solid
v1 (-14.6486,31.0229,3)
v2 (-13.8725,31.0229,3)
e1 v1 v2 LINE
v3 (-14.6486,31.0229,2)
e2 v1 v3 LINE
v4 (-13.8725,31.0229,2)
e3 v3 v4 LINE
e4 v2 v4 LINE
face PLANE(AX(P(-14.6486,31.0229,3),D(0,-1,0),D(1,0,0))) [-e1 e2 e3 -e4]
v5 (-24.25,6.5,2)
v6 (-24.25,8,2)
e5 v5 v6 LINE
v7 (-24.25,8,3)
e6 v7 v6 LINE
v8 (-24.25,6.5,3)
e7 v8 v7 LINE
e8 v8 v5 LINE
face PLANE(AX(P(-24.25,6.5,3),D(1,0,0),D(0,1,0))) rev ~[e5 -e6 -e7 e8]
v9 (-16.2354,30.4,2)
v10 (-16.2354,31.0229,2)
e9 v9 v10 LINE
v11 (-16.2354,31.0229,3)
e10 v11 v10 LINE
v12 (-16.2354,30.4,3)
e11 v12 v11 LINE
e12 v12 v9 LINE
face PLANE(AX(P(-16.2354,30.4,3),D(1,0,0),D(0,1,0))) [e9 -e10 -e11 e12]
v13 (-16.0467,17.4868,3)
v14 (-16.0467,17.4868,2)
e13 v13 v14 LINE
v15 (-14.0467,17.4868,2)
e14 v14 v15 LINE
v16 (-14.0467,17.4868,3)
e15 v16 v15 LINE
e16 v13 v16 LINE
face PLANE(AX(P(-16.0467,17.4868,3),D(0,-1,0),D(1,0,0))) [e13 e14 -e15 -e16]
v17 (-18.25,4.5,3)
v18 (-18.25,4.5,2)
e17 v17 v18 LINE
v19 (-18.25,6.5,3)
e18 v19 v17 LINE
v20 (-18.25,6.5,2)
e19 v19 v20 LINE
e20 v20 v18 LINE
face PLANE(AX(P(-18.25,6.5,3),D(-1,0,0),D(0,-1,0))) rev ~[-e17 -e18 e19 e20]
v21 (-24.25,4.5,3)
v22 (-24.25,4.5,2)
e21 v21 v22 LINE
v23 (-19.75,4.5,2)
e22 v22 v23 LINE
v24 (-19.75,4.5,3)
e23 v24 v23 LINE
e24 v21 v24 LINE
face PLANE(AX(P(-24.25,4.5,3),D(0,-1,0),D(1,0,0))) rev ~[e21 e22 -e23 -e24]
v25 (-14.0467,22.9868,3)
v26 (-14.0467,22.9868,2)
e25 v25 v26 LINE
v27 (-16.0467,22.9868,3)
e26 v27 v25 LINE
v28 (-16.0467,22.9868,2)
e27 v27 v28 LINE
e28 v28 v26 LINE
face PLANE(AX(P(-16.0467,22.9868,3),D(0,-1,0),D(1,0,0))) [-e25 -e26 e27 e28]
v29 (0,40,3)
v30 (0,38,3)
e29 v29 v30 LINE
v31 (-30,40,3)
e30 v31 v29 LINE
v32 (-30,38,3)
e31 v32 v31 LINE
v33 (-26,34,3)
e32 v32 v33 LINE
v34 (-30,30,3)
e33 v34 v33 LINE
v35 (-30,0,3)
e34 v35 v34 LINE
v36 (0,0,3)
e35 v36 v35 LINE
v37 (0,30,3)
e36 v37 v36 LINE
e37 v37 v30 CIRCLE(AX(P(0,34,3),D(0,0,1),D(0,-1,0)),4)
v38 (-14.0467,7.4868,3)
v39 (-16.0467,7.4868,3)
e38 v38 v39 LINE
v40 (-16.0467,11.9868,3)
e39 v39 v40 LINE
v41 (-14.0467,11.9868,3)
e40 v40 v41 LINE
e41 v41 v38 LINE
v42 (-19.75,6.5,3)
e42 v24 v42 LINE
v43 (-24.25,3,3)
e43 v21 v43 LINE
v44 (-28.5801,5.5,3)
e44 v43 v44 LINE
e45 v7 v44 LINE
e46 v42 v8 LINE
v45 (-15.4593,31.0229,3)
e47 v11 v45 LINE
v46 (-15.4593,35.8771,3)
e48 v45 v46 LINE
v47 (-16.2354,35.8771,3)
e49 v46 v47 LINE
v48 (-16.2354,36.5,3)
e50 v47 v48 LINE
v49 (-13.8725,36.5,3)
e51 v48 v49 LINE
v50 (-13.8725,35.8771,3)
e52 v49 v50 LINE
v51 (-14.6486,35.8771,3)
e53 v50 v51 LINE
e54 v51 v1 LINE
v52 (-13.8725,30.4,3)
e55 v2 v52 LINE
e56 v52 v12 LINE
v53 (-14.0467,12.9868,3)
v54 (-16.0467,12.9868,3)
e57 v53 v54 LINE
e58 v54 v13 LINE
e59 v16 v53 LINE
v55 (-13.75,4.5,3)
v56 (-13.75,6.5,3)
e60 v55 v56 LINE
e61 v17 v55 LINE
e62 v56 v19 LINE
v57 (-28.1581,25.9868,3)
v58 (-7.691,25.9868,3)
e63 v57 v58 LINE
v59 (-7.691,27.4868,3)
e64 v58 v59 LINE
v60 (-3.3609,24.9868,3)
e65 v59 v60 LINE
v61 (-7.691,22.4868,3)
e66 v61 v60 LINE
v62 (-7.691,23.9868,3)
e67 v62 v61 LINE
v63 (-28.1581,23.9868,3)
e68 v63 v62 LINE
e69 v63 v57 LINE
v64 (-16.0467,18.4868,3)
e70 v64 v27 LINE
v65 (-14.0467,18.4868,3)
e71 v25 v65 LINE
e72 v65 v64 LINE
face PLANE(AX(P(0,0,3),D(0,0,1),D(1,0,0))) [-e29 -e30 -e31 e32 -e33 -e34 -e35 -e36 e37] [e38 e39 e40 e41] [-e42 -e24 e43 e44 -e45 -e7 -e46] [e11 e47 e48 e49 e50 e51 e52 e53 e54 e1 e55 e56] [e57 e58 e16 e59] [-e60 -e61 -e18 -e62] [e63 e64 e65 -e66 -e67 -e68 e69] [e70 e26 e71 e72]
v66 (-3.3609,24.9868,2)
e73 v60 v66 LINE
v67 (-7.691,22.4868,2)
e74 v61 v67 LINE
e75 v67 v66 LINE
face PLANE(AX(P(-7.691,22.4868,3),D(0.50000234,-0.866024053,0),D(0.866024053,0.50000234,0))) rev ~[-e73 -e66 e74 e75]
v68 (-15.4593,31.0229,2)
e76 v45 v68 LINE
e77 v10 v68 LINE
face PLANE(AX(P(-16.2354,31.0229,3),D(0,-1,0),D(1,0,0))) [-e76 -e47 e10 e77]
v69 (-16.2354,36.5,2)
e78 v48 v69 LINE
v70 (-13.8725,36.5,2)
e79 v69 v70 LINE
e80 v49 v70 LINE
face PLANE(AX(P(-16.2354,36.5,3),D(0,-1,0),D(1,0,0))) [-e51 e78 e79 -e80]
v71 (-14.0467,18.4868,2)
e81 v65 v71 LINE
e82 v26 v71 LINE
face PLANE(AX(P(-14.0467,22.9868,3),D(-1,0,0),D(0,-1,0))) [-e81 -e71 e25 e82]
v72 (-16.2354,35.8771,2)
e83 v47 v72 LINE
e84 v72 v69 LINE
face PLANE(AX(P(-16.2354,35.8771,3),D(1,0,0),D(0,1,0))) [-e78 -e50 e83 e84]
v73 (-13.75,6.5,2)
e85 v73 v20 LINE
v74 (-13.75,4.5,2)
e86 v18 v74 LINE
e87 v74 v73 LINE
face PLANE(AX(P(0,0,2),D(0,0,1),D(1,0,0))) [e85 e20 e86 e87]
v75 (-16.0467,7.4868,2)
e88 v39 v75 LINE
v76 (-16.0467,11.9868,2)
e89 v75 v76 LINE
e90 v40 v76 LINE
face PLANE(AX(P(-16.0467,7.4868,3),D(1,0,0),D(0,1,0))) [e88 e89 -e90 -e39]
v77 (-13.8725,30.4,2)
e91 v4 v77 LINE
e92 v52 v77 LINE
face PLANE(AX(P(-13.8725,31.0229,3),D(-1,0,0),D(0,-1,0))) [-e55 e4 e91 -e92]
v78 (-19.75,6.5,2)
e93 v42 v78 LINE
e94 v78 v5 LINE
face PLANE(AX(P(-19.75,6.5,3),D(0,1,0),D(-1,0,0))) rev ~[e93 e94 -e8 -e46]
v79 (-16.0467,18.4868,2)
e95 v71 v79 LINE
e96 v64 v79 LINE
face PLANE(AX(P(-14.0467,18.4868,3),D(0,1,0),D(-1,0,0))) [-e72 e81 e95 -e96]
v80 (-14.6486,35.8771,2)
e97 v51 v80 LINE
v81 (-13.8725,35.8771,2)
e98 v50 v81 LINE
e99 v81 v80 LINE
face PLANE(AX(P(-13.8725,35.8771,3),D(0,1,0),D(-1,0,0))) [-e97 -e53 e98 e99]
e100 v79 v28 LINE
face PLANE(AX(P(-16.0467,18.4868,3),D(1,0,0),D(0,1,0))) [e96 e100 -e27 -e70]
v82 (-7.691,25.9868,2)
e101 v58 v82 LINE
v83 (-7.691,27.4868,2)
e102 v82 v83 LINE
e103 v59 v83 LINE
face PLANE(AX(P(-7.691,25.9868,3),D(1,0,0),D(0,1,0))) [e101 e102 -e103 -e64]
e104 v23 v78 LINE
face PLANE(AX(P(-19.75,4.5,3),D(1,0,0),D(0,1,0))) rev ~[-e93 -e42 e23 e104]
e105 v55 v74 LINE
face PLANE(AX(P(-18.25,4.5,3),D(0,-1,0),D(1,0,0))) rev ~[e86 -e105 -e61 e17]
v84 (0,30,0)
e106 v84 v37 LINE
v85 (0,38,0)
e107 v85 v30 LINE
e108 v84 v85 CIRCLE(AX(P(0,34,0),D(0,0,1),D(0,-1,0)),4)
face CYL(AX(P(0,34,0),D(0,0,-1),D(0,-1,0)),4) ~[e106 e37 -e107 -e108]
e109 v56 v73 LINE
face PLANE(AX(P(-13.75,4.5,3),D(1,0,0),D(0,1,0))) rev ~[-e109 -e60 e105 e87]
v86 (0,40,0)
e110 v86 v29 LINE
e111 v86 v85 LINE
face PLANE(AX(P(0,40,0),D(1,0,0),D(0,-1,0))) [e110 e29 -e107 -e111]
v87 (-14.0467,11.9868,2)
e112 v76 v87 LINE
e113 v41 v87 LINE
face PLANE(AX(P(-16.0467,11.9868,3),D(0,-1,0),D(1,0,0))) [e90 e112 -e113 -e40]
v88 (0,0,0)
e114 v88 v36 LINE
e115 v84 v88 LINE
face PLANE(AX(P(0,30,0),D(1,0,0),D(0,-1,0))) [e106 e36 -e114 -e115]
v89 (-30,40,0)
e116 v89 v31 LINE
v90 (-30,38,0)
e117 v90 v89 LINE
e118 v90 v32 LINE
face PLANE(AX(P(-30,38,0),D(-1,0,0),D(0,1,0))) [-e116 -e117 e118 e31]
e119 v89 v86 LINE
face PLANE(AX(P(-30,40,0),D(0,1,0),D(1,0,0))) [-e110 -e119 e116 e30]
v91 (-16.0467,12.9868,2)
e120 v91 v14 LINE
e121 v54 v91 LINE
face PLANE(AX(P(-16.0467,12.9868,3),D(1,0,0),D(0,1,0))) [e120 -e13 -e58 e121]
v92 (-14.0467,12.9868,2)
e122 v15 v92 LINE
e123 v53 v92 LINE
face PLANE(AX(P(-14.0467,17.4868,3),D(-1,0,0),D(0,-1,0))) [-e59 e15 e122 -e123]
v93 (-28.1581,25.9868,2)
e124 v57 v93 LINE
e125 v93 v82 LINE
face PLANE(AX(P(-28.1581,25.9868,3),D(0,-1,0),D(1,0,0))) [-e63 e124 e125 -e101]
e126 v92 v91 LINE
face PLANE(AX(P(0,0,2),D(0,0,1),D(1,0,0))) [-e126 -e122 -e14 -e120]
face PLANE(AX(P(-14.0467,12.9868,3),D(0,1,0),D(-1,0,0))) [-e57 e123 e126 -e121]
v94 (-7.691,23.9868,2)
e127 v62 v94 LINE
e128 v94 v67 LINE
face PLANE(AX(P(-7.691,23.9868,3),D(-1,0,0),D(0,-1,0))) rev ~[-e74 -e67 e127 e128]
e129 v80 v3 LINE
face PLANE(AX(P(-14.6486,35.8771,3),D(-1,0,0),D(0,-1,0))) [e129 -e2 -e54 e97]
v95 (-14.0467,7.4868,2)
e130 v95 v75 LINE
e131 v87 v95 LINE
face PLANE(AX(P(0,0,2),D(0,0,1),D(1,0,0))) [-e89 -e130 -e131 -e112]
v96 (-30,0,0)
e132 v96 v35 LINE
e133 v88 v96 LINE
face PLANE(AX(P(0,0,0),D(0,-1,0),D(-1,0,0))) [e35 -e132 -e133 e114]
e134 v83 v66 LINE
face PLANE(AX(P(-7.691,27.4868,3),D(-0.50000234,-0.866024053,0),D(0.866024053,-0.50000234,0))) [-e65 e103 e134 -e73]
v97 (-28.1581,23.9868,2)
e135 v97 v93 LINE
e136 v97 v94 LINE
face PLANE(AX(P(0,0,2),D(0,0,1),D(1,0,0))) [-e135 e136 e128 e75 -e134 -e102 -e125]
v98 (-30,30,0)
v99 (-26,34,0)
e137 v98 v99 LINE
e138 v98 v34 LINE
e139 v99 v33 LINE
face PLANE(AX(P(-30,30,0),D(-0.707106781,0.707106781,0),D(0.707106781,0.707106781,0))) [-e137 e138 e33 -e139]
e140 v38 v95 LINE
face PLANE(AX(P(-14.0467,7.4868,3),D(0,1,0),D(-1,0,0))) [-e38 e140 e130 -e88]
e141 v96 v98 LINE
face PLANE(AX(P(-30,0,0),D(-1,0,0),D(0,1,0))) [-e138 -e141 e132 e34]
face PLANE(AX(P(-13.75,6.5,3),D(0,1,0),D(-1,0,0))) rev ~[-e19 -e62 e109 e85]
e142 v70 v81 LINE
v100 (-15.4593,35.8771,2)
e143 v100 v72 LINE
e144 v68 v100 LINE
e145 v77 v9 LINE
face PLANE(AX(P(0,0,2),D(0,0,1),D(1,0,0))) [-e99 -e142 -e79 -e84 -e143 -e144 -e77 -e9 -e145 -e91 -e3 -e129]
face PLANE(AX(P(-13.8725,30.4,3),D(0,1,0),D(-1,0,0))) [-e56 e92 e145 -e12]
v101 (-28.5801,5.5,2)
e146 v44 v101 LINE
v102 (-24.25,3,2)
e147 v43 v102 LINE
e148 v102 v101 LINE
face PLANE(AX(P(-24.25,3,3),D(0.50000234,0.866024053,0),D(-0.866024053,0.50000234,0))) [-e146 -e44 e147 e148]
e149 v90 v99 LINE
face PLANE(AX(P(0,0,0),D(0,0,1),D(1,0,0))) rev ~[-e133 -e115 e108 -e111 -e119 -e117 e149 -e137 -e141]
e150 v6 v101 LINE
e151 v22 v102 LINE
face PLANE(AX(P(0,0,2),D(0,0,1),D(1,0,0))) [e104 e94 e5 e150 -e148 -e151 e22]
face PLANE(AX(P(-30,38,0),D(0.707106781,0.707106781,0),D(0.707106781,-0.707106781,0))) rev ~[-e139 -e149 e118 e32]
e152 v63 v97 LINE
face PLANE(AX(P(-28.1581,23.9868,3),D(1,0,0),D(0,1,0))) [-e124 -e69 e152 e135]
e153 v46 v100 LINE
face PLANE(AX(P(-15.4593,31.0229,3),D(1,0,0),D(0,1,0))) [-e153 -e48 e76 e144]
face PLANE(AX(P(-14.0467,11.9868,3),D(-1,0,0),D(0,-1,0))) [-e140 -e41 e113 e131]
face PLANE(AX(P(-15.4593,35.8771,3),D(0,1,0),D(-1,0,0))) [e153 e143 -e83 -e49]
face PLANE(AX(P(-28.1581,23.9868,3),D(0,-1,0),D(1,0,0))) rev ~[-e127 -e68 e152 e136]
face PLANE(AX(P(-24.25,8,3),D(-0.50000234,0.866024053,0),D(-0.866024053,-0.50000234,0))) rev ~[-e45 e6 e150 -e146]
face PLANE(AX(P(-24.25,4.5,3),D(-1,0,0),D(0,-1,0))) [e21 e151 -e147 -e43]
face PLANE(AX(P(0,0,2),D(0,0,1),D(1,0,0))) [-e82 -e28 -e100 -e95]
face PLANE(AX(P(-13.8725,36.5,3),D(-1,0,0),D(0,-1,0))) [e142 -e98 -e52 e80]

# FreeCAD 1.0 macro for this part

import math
import FreeCAD as App
import Part
import Sketcher

V = App.Vector


def add_polygon(sketch, points):
    """Adds a closed chain of lines whose ends are joined by coincident constraints."""
    first, n = sketch.GeometryCount, len(points)
    for a, b in zip(points, points[1:] + points[:1]):
        sketch.addGeometry(Part.LineSegment(App.Vector(*a, 0), App.Vector(*b, 0)), False)
    for i in range(n):
        sketch.addConstraint(Sketcher.Constraint("Coincident", first + i, 2, first + (i + 1) % n, 1))

doc = App.newDocument("Part")
params = doc.addObject("Spreadsheet::Sheet", "Params")
for row, (alias, value) in enumerate([
    ("sketch1_radius", "4 mm"),
    ("sketch1_width", "30 mm"),
    ("pad1_length", "3 mm"),
    ("sketch2_width", "2 mm"),
    ("sketch2_length", "5 mm"),
    ("sketch2_width2", "4.5 mm"),
    ("sketch2_height", "1.5 mm"),
    ("pocket1_length", "1 mm"),
], start=1):
    params.set(f"A{row}", alias)
    params.set(f"B{row}", "=" + value)
    params.setAlias(f"B{row}", alias)

body = doc.addObject("PartDesign::Body", "Body")

# Sketch on XY plane
sketch1 = body.newObject("Sketcher::SketchObject", "Sketch")
sketch1.AttachmentSupport = (doc.getObject("XY_Plane"), [""])
sketch1.MapMode = "FlatFace"
sketch1.addGeometry([
    Part.LineSegment(V(-30, 0, 0), V(0, 0, 0)),  # 0
    Part.LineSegment(V(0, 0, 0), V(0, 30, 0)),  # 1
    Part.ArcOfCircle(Part.Circle(V(0, 34, 0), V(0, 0, 1), 4), math.radians(-90), math.radians(90)),  # 2
    Part.LineSegment(V(0, 38, 0), V(0, 40, 0)),  # 3
    Part.LineSegment(V(0, 40, 0), V(-30, 40, 0)),  # 4
    Part.LineSegment(V(-30, 40, 0), V(-30, 38, 0)),  # 5
    Part.LineSegment(V(-30, 38, 0), V(-26, 34, 0)),  # 6
    Part.LineSegment(V(-26, 34, 0), V(-30, 30, 0)),  # 7
    Part.LineSegment(V(-30, 30, 0), V(-30, 0, 0)),  # 8
], False)
sketch1.addConstraint([
    Sketcher.Constraint("Coincident", 0, 2, 1, 1),
    Sketcher.Constraint("Coincident", 1, 2, 2, 1),
    Sketcher.Constraint("Coincident", 2, 2, 3, 1),
    Sketcher.Constraint("Coincident", 3, 2, 4, 1),
    Sketcher.Constraint("Coincident", 4, 2, 5, 1),
    Sketcher.Constraint("Coincident", 5, 2, 6, 1),
    Sketcher.Constraint("Coincident", 6, 2, 7, 1),
    Sketcher.Constraint("Coincident", 7, 2, 8, 1),
    Sketcher.Constraint("Coincident", 8, 2, 0, 1),
    Sketcher.Constraint("Horizontal", 0),
    Sketcher.Constraint("Vertical", 1),
    Sketcher.Constraint("Vertical", 3),
    Sketcher.Constraint("Horizontal", 4),
    Sketcher.Constraint("Vertical", 5),
    Sketcher.Constraint("Vertical", 8),
    Sketcher.Constraint("Coincident", 0, 2, -1, 1),
    Sketcher.Constraint("PointOnObject", 2, 3, -2),
    Sketcher.Constraint("PointOnObject", 2, 2, -2),
    Sketcher.Constraint("Perpendicular", 6, 7),
    Sketcher.Constraint("Horizontal", 2, 2, 5, 2),
    Sketcher.Constraint("Horizontal", 2, 3, 6, 2),
    Sketcher.Constraint("Horizontal", 1, 2, 7, 2),
    Sketcher.Constraint("Vertical", 5, 2, 7, 2),
    Sketcher.Constraint("Equal", 4, 1),
    Sketcher.Constraint("Radius", 2, 4.0),
    Sketcher.Constraint("DistanceX", 0, 1, 0, 2, 30.0),
    Sketcher.Constraint("DistanceY", -1, 1, 3, 2, 40.0),
])
sketch1.setExpression("Constraints[24]", "Params.sketch1_radius")
sketch1.setExpression("Constraints[25]", "Params.sketch1_width")
pad1 = body.newObject("PartDesign::Pad", "Pad")
pad1.Profile = sketch1
pad1.setExpression("Length", "Params.pad1_length")

# Sketch on XY plane
sketch2 = body.newObject("Sketcher::SketchObject", "Sketch001")
sketch2.AttachmentSupport = (doc.getObject("XY_Plane"), [""])
sketch2.MapMode = "FlatFace"
sketch2.AttachmentOffset = App.Placement(V(0, 0, 3), App.Rotation())
add_polygon(sketch2, [(-7.691, 25.9868), (-28.1581, 25.9868), (-28.1581, 23.9868), (-7.691, 23.9868), (-7.691, 22.4868), (-3.3609, 24.9868), (-7.691, 27.4868)])  # lines 0-6
add_polygon(sketch2, [(-16.0467, 18.4868), (-14.0467, 18.4868), (-14.0467, 22.9868), (-16.0467, 22.9868)])  # lines 7-10
add_polygon(sketch2, [(-13.75, 4.5), (-13.75, 6.5), (-18.25, 6.5), (-18.25, 4.5)])  # lines 11-14
add_polygon(sketch2, [(-19.75, 4.5), (-19.75, 6.5), (-24.25, 6.5), (-24.25, 8), (-28.5801, 5.5), (-24.25, 3), (-24.25, 4.5)])  # lines 15-21
add_polygon(sketch2, [(-14.0467, 17.4868), (-16.0467, 17.4868), (-16.0467, 12.9868), (-14.0467, 12.9868)])  # lines 22-25
add_polygon(sketch2, [(-14.0467, 11.9868), (-16.0467, 11.9868), (-16.0467, 7.4868), (-14.0467, 7.4868)])  # lines 26-29
add_polygon(sketch2, [(-16.2354, 30.4), (-13.8725, 30.4), (-13.8725, 31.0229), (-14.6486, 31.0229), (-14.6486, 35.8771), (-13.8725, 35.8771), (-13.8725, 36.5), (-16.2354, 36.5), (-16.2354, 35.8771), (-15.4593, 35.8771), (-15.4593, 31.0229), (-16.2354, 31.0229)])  # lines 30-41
sketch2.addConstraint([
    Sketcher.Constraint("Horizontal", 0),
    Sketcher.Constraint("Vertical", 1),
    Sketcher.Constraint("Horizontal", 2),
    Sketcher.Constraint("Vertical", 3),
    Sketcher.Constraint("Vertical", 6),
    Sketcher.Constraint("Horizontal", 7),
    Sketcher.Constraint("Vertical", 8),
    Sketcher.Constraint("Horizontal", 9),
    Sketcher.Constraint("Vertical", 10),
    Sketcher.Constraint("Vertical", 11),
    Sketcher.Constraint("Horizontal", 12),
    Sketcher.Constraint("Vertical", 13),
    Sketcher.Constraint("Horizontal", 14),
    Sketcher.Constraint("Vertical", 15),
    Sketcher.Constraint("Horizontal", 16),
    Sketcher.Constraint("Vertical", 17),
    Sketcher.Constraint("Vertical", 20),
    Sketcher.Constraint("Horizontal", 21),
    Sketcher.Constraint("Horizontal", 22),
    Sketcher.Constraint("Vertical", 23),
    Sketcher.Constraint("Horizontal", 24),
    Sketcher.Constraint("Vertical", 25),
    Sketcher.Constraint("Horizontal", 26),
    Sketcher.Constraint("Vertical", 27),
    Sketcher.Constraint("Horizontal", 28),
    Sketcher.Constraint("Vertical", 29),
    Sketcher.Constraint("Horizontal", 30),
    Sketcher.Constraint("Vertical", 31),
    Sketcher.Constraint("Horizontal", 32),
    Sketcher.Constraint("Vertical", 33),
    Sketcher.Constraint("Horizontal", 34),
    Sketcher.Constraint("Vertical", 35),
    Sketcher.Constraint("Horizontal", 36),
    Sketcher.Constraint("Vertical", 37),
    Sketcher.Constraint("Horizontal", 38),
    Sketcher.Constraint("Vertical", 39),
    Sketcher.Constraint("Horizontal", 40),
    Sketcher.Constraint("Vertical", 41),
    Sketcher.Constraint("Parallel", 4, 18),
    Sketcher.Constraint("Parallel", 5, 19),
    Sketcher.Constraint("Horizontal", 12, 2, 15, 2),
    Sketcher.Constraint("Horizontal", 14, 2, 20, 2),
    Sketcher.Constraint("Horizontal", 34, 2, 37, 2),
    Sketcher.Constraint("Horizontal", 32, 2, 39, 2),
    Sketcher.Constraint("Vertical", 3, 2, 5, 2),
    Sketcher.Constraint("Vertical", 17, 2, 19, 2),
    Sketcher.Constraint("Vertical", 10, 2, 22, 2),
    Sketcher.Constraint("Vertical", 8, 2, 24, 2),
    Sketcher.Constraint("Vertical", 23, 2, 26, 2),
    Sketcher.Constraint("Vertical", 25, 2, 28, 2),
    Sketcher.Constraint("Vertical", 31, 2, 34, 2),
    Sketcher.Constraint("Vertical", 37, 2, 40, 2),
    Sketcher.Constraint("Equal", 14, 16),
    Sketcher.Constraint("Equal", 34, 38),
    Sketcher.Constraint("Equal", 28, 1),
    Sketcher.Constraint("Equal", 3, 6),
    Sketcher.Constraint("Equal", 21, 8),
    Sketcher.Constraint("Equal", 1, 11),
    Sketcher.Constraint("Equal", 6, 17),
    Sketcher.Constraint("Equal", 17, 20),
    Sketcher.Constraint("Equal", 10, 23),
    Sketcher.Constraint("Equal", 25, 27),
    Sketcher.Constraint("Equal", 31, 35),
    Sketcher.Constraint("Equal", 4, 5),
    Sketcher.Constraint("DistanceX", 7, 1, 7, 2, 2.0),
    Sketcher.Constraint("Distance", 4, 5.0),
    Sketcher.Constraint("DistanceX", 12, 2, 12, 1, 4.5),
    Sketcher.Constraint("DistanceY", 3, 2, 3, 1, 1.5),
    Sketcher.Constraint("DistanceY", -1, 1, 17, 2, 8.0),
    Sketcher.Constraint("DistanceY", 8, 2, 2, 2, 1.0),
    Sketcher.Constraint("DistanceX", 15, 2, 11, 2, 6.0),
    Sketcher.Constraint("DistanceY", 22, 2, 10, 2, 1.0),
    Sketcher.Constraint("DistanceY", 26, 2, 23, 2, 1.0),
    Sketcher.Constraint("DistanceY", -1, 1, 30, 2, 30.4),
    Sketcher.Constraint("DistanceY", -1, 1, 35, 2, 36.5),
    Sketcher.Constraint("DistanceX", 0, 2, 0, 1, 20.467),
    Sketcher.Constraint("DistanceX", 30, 1, 30, 2, 2.363),
    Sketcher.Constraint("DistanceX", 32, 2, 32, 1, 0.776),
    Sketcher.Constraint("DistanceY", 31, 1, 31, 2, 0.623),
    Sketcher.Constraint("DistanceX", 11, 2, -1, 1, 13.75),
    Sketcher.Constraint("DistanceX", 0, 2, -1, 1, 28.158),
    Sketcher.Constraint("DistanceY", 5, 2, 31, 2, 3.536),
    Sketcher.Constraint("DistanceX", 32, 2, 8, 2, 0.602),
    Sketcher.Constraint("DistanceX", 7, 2, -1, 1, 14.0467),
])
sketch2.setExpression("Constraints[106]", "Params.sketch2_width")
sketch2.setExpression("Constraints[107]", "Params.sketch2_length")
sketch2.setExpression("Constraints[108]", "Params.sketch2_width2")
sketch2.setExpression("Constraints[109]", "Params.sketch2_height")
pocket1 = body.newObject("PartDesign::Pocket", "Pocket")
pocket1.Profile = sketch2
pocket1.setExpression("Length", "Params.pocket1_length")

doc.recompute()
